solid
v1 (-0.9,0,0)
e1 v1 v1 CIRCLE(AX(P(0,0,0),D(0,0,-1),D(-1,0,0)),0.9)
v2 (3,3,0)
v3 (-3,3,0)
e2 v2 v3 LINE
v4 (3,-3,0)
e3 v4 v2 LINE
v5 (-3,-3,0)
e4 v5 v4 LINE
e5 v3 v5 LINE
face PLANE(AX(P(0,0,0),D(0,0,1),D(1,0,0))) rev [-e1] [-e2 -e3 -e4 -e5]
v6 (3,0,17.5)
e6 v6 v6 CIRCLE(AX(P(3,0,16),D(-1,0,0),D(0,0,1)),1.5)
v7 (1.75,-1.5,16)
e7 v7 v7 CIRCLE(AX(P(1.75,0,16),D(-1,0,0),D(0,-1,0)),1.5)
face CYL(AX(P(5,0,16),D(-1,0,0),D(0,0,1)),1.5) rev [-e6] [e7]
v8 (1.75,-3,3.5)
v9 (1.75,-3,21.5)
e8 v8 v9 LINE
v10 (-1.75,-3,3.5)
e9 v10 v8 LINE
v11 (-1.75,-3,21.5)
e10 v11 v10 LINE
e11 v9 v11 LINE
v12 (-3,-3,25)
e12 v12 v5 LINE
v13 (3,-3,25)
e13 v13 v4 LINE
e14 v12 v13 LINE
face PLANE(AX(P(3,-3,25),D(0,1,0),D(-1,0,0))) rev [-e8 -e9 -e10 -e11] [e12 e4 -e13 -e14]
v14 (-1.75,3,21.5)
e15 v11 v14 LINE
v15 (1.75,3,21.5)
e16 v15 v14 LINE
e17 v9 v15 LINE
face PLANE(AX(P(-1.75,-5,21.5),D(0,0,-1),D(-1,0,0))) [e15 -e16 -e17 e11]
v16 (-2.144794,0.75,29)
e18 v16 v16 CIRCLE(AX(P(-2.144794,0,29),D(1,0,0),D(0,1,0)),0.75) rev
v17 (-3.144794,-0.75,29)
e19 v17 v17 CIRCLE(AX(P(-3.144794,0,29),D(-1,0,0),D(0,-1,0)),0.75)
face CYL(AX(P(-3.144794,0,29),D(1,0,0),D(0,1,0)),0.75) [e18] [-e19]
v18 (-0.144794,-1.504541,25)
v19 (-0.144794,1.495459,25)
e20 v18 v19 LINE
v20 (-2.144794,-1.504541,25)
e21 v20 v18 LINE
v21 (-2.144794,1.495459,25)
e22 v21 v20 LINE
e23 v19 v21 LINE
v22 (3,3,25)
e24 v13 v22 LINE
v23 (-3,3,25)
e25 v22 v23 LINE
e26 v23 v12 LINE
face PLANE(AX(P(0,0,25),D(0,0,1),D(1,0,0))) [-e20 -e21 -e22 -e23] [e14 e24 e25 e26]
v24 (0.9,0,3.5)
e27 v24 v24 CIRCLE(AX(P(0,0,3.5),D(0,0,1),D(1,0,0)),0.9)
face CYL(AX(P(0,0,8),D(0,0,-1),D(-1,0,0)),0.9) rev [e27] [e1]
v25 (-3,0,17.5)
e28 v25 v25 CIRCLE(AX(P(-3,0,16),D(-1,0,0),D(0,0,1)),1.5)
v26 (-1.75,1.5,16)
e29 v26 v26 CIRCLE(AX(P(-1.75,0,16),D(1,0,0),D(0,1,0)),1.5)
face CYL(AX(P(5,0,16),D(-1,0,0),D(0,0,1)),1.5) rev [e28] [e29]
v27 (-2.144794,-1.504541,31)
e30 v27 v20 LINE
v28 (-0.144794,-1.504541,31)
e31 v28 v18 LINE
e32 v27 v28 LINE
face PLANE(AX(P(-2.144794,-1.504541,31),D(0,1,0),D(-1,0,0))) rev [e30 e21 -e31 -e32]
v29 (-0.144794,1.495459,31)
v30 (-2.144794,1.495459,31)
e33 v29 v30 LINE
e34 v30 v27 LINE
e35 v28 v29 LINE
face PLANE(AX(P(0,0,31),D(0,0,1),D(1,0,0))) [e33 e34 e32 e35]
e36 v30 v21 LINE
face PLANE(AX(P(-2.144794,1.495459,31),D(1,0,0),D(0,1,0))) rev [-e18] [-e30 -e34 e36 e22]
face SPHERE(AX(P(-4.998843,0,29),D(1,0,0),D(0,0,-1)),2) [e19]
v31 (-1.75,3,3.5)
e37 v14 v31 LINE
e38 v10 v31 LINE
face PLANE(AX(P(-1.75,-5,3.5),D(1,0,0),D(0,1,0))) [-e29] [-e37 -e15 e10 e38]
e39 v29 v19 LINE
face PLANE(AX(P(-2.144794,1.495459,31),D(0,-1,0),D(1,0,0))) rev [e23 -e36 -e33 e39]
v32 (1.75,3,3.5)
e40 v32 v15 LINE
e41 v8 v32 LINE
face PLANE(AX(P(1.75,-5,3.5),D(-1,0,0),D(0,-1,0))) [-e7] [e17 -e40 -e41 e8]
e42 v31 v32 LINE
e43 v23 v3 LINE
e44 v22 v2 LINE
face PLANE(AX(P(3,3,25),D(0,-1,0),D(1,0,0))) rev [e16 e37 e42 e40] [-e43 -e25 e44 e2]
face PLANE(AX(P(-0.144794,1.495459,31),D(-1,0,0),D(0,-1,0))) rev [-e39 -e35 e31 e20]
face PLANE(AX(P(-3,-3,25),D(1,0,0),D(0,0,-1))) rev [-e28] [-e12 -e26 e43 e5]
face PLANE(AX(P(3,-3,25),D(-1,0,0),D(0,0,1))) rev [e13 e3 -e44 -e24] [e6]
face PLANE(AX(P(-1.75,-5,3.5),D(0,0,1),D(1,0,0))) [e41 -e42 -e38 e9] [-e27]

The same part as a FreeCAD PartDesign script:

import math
import FreeCAD as App
import Part
import Sketcher

V = App.Vector

doc = App.newDocument("Part")
body = doc.addObject("PartDesign::Body", "Body")

# Sketch on XY plane
sketch1 = doc.addObject("Sketcher::SketchObject", "Sketch")
body.addObject(sketch1)
sketch1.AttachmentSupport = (doc.XY_Plane, [""])
sketch1.MapMode = "FlatFace"
sketch1.addGeometry([
    Part.LineSegment(V(-3, 3, 0), V(-3, -3, 0)),
    Part.LineSegment(V(-3, -3, 0), V(3, -3, 0)),
    Part.LineSegment(V(3, -3, 0), V(3, 3, 0)),
    Part.LineSegment(V(3, 3, 0), V(-3, 3, 0)),
], False)
sketch1.addConstraint([
    Sketcher.Constraint("Coincident", 0, 2, 1, 1),
    Sketcher.Constraint("Coincident", 1, 2, 2, 1),
    Sketcher.Constraint("Coincident", 2, 2, 3, 1),
    Sketcher.Constraint("Coincident", 3, 2, 0, 1),
    Sketcher.Constraint("Vertical", 0),
    Sketcher.Constraint("Horizontal", 1),
    Sketcher.Constraint("Vertical", 2),
    Sketcher.Constraint("Horizontal", 3),
    Sketcher.Constraint("Symmetric", 0, 2, 2, 2, -1, 1),
    Sketcher.Constraint("Equal", 3, 0),
    Sketcher.Constraint("DistanceX", 1, 1, 1, 2, 6.0),
])
pad1 = doc.addObject("PartDesign::Pad", "Pad")
body.addObject(pad1)
pad1.Profile = sketch1
pad1.Length = 25

# Sketch on XY plane
sketch2 = doc.addObject("Sketcher::SketchObject", "Sketch001")
body.addObject(sketch2)
sketch2.AttachmentSupport = (doc.XY_Plane, [""])
sketch2.MapMode = "FlatFace"
sketch2.AttachmentOffset = App.Placement(V(0, 0, 25), App.Rotation())
sketch2.addGeometry([
    Part.LineSegment(V(-2.1, 1.5, 0), V(-2.1, -1.5, 0)),
    Part.LineSegment(V(-2.1, -1.5, 0), V(-0.1, -1.5, 0)),
    Part.LineSegment(V(-0.1, -1.5, 0), V(-0.1, 1.5, 0)),
    Part.LineSegment(V(-0.1, 1.5, 0), V(-2.1, 1.5, 0)),
], False)
sketch2.addConstraint([
    Sketcher.Constraint("Coincident", 0, 2, 1, 1),
    Sketcher.Constraint("Coincident", 1, 2, 2, 1),
    Sketcher.Constraint("Coincident", 2, 2, 3, 1),
    Sketcher.Constraint("Coincident", 3, 2, 0, 1),
    Sketcher.Constraint("Vertical", 0),
    Sketcher.Constraint("Horizontal", 1),
    Sketcher.Constraint("Vertical", 2),
    Sketcher.Constraint("Horizontal", 3),
    Sketcher.Constraint("DistanceX", 1, 1, 1, 2, 2.0),
    Sketcher.Constraint("DistanceY", 0, 2, 0, 1, 3.0),
    Sketcher.Constraint("DistanceY", 0, 2, -1, 1, 1.504541),
    Sketcher.Constraint("DistanceX", 0, 2, -1, 1, 2.144794),
])
pad2 = doc.addObject("PartDesign::Pad", "Pad001")
body.addObject(pad2)
pad2.Profile = sketch2
pad2.Length = 6

# Sketch on YZ plane
sketch3 = doc.addObject("Sketcher::SketchObject", "Sketch002")
body.addObject(sketch3)
sketch3.AttachmentSupport = (doc.YZ_Plane, [""])
sketch3.MapMode = "FlatFace"
sketch3.AttachmentOffset = App.Placement(V(0, 0, -2.144794), App.Rotation())
sketch3.addGeometry(Part.Circle(V(0, 29, 0), V(0, 0, 1), 0.8), False)
sketch3.addConstraint([
    Sketcher.Constraint("PointOnObject", 0, 3, -2),
    Sketcher.Constraint("Diameter", 0, 1.5),
    Sketcher.Constraint("DistanceY", -1, 1, 0, 3, 29.0),
])
pad3 = doc.addObject("PartDesign::Pad", "Pad002")
body.addObject(pad3)
pad3.Profile = sketch3
pad3.Length = 1
pad3.Reversed = True

# Sketch on XZ plane
sketch4 = doc.addObject("Sketcher::SketchObject", "Sketch003")
body.addObject(sketch4)
sketch4.AttachmentSupport = (doc.XZ_Plane, [""])
sketch4.MapMode = "FlatFace"
sketch4.addGeometry([
    Part.LineSegment(V(-7, 29, 0), V(-3.1, 29, 0)),
    Part.LineSegment(V(-3.1, 29, 0), V(-3.1, 28.2, 0)),
    Part.ArcOfCircle(Part.Circle(V(-5, 29, 0), V(0, 0, 1), 2), math.radians(180), math.radians(338)),
], False)
sketch4.addGeometry(Part.LineSegment(V(-3.1, 29, 0), V(-7, 29, 0)), True)  # axis
sketch4.addConstraint([
    Sketcher.Constraint("Coincident", 0, 2, 1, 1),
    Sketcher.Constraint("Coincident", 1, 2, 2, 2),
    Sketcher.Constraint("Coincident", 2, 1, 0, 1),
    Sketcher.Constraint("Horizontal", 0),
    Sketcher.Constraint("Vertical", 1),
    Sketcher.Constraint("Horizontal", 3),
    Sketcher.Constraint("Coincident", 3, 1, 0, 2),
    Sketcher.Constraint("Horizontal", 2, 3, 0, 2),
    Sketcher.Constraint("Equal", 0, 3),
    Sketcher.Constraint("Radius", 2, 2.0),
    Sketcher.Constraint("DistanceY", -1, 1, 2, 3, 29.0),
    Sketcher.Constraint("DistanceY", 1, 2, 1, 1, 0.75),
    Sketcher.Constraint("DistanceX", 2, 3, -1, 1, 4.998843),
])
revolution = doc.addObject("PartDesign::Revolution", "Revolution")
body.addObject(revolution)
revolution.Profile = sketch4
revolution.ReferenceAxis = (sketch4, ["Axis0"])
revolution.Angle = 360

# Sketch on XZ plane
sketch5 = doc.addObject("Sketcher::SketchObject", "Sketch004")
body.addObject(sketch5)
sketch5.AttachmentSupport = (doc.XZ_Plane, [""])
sketch5.MapMode = "FlatFace"
sketch5.AttachmentOffset = App.Placement(V(0, 0, -3), App.Rotation())
sketch5.addGeometry([
    Part.LineSegment(V(-1.8, 3.5, 0), V(1.8, 3.5, 0)),
    Part.LineSegment(V(1.8, 3.5, 0), V(1.8, 21.5, 0)),
    Part.LineSegment(V(1.8, 21.5, 0), V(-1.8, 21.5, 0)),
    Part.LineSegment(V(-1.8, 21.5, 0), V(-1.8, 3.5, 0)),
], False)
sketch5.addConstraint([
    Sketcher.Constraint("Coincident", 0, 2, 1, 1),
    Sketcher.Constraint("Coincident", 1, 2, 2, 1),
    Sketcher.Constraint("Coincident", 2, 2, 3, 1),
    Sketcher.Constraint("Coincident", 3, 2, 0, 1),
    Sketcher.Constraint("Horizontal", 0),
    Sketcher.Constraint("Vertical", 1),
    Sketcher.Constraint("Horizontal", 2),
    Sketcher.Constraint("Vertical", 3),
    Sketcher.Constraint("DistanceY", 1, 1, 1, 2, 18.0),
    Sketcher.Constraint("DistanceX", 0, 1, 0, 2, 3.5),
    Sketcher.Constraint("DistanceY", -1, 1, 0, 2, 3.5),
    Sketcher.Constraint("DistanceX", -1, 1, 0, 2, 1.75),
])
pocket1 = doc.addObject("PartDesign::Pocket", "Pocket")
body.addObject(pocket1)
pocket1.Profile = sketch5
pocket1.Length = 8
pocket1.Reversed = True

# Sketch on YZ plane
sketch6 = doc.addObject("Sketcher::SketchObject", "Sketch005")
body.addObject(sketch6)
sketch6.AttachmentSupport = (doc.YZ_Plane, [""])
sketch6.MapMode = "FlatFace"
sketch6.AttachmentOffset = App.Placement(V(0, 0, -3), App.Rotation())
sketch6.addGeometry(Part.Circle(V(0, 16, 0), V(0, 0, 1), 1.5), False)
sketch6.addConstraint([
    Sketcher.Constraint("PointOnObject", 0, 3, -2),
    Sketcher.Constraint("Diameter", 0, 3.0),
    Sketcher.Constraint("DistanceY", -1, 1, 0, 3, 16.0),
])
pocket2 = doc.addObject("PartDesign::Pocket", "Pocket001")
body.addObject(pocket2)
pocket2.Profile = sketch6
pocket2.Length = 8
pocket2.Reversed = True

# Sketch on XY plane
sketch7 = doc.addObject("Sketcher::SketchObject", "Sketch006")
body.addObject(sketch7)
sketch7.AttachmentSupport = (doc.XY_Plane, [""])
sketch7.MapMode = "FlatFace"
sketch7.addGeometry(Part.Circle(V(0, 0, 0), V(0, 0, 1), 0.9), False)
sketch7.addConstraint([
    Sketcher.Constraint("Coincident", 0, 3, -1, 1),
    Sketcher.Constraint("Diameter", 0, 1.8),
])
pocket3 = doc.addObject("PartDesign::Pocket", "Pocket002")
body.addObject(pocket3)
pocket3.Profile = sketch7
pocket3.Length = 8
pocket3.Reversed = True

doc.recompute()
